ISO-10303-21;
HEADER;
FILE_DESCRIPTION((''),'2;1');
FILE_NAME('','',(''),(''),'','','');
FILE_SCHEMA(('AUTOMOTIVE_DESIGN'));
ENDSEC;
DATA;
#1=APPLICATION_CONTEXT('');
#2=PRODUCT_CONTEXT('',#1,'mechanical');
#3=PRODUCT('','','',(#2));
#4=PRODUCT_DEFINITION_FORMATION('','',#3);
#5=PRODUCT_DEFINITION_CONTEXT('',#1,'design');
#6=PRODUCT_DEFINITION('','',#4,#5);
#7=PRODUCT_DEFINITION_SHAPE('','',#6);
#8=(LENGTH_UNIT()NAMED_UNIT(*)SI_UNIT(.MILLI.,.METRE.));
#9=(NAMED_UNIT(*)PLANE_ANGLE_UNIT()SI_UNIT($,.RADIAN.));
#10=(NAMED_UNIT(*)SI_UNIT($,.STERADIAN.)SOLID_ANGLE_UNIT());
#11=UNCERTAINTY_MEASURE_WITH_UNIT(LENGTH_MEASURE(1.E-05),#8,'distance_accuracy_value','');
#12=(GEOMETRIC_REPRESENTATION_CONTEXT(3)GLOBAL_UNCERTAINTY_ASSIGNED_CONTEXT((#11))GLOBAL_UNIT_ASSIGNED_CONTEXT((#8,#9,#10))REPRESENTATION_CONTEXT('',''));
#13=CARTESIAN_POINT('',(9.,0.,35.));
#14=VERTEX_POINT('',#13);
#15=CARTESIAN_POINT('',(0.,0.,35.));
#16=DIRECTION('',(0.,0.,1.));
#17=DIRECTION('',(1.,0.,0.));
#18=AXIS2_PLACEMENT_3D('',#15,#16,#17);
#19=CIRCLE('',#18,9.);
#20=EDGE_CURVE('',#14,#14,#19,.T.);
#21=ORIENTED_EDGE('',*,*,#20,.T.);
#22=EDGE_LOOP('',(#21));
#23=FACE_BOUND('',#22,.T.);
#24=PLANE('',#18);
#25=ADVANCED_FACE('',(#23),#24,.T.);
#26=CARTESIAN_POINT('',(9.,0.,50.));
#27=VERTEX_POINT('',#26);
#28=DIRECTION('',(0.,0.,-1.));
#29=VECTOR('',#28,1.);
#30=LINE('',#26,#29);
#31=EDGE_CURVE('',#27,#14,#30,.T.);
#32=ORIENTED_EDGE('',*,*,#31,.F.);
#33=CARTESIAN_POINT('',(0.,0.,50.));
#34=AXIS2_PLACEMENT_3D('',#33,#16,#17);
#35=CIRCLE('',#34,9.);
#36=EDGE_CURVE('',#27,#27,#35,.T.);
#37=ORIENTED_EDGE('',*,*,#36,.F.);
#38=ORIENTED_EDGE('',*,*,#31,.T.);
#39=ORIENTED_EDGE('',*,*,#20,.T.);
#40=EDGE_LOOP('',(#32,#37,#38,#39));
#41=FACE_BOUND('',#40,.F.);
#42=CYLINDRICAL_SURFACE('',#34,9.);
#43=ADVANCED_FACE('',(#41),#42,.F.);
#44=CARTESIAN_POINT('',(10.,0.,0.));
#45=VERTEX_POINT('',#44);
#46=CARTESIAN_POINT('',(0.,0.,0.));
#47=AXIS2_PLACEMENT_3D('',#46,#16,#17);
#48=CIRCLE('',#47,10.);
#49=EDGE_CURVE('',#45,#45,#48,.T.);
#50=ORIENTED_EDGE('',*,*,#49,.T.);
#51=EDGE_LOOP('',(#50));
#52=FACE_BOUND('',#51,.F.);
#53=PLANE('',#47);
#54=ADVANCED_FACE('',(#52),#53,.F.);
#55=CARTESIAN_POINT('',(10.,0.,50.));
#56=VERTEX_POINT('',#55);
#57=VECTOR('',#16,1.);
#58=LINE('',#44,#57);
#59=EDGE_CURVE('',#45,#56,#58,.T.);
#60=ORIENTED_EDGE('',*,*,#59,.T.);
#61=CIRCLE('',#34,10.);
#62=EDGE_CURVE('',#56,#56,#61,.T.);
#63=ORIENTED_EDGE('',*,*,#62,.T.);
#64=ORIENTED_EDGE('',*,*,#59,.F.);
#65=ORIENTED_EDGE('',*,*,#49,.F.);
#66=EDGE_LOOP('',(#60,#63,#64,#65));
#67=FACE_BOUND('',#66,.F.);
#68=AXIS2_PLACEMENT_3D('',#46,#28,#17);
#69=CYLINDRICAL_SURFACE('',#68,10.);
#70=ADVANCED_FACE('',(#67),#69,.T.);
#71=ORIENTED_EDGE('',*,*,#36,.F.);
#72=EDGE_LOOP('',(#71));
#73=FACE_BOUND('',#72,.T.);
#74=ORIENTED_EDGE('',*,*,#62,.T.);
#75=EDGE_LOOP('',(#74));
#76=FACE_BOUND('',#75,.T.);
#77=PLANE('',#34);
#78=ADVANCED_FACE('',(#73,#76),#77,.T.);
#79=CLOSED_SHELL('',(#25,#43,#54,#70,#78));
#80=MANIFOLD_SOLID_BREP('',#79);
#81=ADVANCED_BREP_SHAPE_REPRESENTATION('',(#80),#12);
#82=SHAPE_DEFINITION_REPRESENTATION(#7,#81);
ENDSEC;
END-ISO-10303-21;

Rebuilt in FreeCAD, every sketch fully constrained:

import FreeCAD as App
import Part
import Sketcher

V = App.Vector

doc = App.newDocument("Part")
body = doc.addObject("PartDesign::Body", "Body")

# Sketch on XY plane
sketch1 = body.newObject("Sketcher::SketchObject", "Sketch")
sketch1.AttachmentSupport = (doc.getObject("XY_Plane"), [""])
sketch1.MapMode = "FlatFace"
sketch1.addGeometry(Part.Circle(V(0, 0, 0), V(0, 0, 1), 10), False)
sketch1.addConstraint([
    Sketcher.Constraint("Coincident", 0, 3, -1, 1),
    Sketcher.Constraint("Diameter", 0, 20.0),
])
pad1 = body.newObject("PartDesign::Pad", "Pad")
pad1.Profile = sketch1
pad1.Length = 50

# Sketch on XY plane
sketch2 = body.newObject("Sketcher::SketchObject", "Sketch001")
sketch2.AttachmentSupport = (doc.getObject("XY_Plane"), [""])
sketch2.MapMode = "FlatFace"
sketch2.AttachmentOffset = App.Placement(V(0, 0, 50), App.Rotation())
sketch2.addGeometry(Part.Circle(V(0, 0, 0), V(0, 0, 1), 9), False)
sketch2.addConstraint([
    Sketcher.Constraint("Coincident", 0, 3, -1, 1),
    Sketcher.Constraint("Diameter", 0, 18.0),
])
pocket1 = body.newObject("PartDesign::Pocket", "Pocket")
pocket1.Profile = sketch2
pocket1.Length = 15

doc.recompute()
